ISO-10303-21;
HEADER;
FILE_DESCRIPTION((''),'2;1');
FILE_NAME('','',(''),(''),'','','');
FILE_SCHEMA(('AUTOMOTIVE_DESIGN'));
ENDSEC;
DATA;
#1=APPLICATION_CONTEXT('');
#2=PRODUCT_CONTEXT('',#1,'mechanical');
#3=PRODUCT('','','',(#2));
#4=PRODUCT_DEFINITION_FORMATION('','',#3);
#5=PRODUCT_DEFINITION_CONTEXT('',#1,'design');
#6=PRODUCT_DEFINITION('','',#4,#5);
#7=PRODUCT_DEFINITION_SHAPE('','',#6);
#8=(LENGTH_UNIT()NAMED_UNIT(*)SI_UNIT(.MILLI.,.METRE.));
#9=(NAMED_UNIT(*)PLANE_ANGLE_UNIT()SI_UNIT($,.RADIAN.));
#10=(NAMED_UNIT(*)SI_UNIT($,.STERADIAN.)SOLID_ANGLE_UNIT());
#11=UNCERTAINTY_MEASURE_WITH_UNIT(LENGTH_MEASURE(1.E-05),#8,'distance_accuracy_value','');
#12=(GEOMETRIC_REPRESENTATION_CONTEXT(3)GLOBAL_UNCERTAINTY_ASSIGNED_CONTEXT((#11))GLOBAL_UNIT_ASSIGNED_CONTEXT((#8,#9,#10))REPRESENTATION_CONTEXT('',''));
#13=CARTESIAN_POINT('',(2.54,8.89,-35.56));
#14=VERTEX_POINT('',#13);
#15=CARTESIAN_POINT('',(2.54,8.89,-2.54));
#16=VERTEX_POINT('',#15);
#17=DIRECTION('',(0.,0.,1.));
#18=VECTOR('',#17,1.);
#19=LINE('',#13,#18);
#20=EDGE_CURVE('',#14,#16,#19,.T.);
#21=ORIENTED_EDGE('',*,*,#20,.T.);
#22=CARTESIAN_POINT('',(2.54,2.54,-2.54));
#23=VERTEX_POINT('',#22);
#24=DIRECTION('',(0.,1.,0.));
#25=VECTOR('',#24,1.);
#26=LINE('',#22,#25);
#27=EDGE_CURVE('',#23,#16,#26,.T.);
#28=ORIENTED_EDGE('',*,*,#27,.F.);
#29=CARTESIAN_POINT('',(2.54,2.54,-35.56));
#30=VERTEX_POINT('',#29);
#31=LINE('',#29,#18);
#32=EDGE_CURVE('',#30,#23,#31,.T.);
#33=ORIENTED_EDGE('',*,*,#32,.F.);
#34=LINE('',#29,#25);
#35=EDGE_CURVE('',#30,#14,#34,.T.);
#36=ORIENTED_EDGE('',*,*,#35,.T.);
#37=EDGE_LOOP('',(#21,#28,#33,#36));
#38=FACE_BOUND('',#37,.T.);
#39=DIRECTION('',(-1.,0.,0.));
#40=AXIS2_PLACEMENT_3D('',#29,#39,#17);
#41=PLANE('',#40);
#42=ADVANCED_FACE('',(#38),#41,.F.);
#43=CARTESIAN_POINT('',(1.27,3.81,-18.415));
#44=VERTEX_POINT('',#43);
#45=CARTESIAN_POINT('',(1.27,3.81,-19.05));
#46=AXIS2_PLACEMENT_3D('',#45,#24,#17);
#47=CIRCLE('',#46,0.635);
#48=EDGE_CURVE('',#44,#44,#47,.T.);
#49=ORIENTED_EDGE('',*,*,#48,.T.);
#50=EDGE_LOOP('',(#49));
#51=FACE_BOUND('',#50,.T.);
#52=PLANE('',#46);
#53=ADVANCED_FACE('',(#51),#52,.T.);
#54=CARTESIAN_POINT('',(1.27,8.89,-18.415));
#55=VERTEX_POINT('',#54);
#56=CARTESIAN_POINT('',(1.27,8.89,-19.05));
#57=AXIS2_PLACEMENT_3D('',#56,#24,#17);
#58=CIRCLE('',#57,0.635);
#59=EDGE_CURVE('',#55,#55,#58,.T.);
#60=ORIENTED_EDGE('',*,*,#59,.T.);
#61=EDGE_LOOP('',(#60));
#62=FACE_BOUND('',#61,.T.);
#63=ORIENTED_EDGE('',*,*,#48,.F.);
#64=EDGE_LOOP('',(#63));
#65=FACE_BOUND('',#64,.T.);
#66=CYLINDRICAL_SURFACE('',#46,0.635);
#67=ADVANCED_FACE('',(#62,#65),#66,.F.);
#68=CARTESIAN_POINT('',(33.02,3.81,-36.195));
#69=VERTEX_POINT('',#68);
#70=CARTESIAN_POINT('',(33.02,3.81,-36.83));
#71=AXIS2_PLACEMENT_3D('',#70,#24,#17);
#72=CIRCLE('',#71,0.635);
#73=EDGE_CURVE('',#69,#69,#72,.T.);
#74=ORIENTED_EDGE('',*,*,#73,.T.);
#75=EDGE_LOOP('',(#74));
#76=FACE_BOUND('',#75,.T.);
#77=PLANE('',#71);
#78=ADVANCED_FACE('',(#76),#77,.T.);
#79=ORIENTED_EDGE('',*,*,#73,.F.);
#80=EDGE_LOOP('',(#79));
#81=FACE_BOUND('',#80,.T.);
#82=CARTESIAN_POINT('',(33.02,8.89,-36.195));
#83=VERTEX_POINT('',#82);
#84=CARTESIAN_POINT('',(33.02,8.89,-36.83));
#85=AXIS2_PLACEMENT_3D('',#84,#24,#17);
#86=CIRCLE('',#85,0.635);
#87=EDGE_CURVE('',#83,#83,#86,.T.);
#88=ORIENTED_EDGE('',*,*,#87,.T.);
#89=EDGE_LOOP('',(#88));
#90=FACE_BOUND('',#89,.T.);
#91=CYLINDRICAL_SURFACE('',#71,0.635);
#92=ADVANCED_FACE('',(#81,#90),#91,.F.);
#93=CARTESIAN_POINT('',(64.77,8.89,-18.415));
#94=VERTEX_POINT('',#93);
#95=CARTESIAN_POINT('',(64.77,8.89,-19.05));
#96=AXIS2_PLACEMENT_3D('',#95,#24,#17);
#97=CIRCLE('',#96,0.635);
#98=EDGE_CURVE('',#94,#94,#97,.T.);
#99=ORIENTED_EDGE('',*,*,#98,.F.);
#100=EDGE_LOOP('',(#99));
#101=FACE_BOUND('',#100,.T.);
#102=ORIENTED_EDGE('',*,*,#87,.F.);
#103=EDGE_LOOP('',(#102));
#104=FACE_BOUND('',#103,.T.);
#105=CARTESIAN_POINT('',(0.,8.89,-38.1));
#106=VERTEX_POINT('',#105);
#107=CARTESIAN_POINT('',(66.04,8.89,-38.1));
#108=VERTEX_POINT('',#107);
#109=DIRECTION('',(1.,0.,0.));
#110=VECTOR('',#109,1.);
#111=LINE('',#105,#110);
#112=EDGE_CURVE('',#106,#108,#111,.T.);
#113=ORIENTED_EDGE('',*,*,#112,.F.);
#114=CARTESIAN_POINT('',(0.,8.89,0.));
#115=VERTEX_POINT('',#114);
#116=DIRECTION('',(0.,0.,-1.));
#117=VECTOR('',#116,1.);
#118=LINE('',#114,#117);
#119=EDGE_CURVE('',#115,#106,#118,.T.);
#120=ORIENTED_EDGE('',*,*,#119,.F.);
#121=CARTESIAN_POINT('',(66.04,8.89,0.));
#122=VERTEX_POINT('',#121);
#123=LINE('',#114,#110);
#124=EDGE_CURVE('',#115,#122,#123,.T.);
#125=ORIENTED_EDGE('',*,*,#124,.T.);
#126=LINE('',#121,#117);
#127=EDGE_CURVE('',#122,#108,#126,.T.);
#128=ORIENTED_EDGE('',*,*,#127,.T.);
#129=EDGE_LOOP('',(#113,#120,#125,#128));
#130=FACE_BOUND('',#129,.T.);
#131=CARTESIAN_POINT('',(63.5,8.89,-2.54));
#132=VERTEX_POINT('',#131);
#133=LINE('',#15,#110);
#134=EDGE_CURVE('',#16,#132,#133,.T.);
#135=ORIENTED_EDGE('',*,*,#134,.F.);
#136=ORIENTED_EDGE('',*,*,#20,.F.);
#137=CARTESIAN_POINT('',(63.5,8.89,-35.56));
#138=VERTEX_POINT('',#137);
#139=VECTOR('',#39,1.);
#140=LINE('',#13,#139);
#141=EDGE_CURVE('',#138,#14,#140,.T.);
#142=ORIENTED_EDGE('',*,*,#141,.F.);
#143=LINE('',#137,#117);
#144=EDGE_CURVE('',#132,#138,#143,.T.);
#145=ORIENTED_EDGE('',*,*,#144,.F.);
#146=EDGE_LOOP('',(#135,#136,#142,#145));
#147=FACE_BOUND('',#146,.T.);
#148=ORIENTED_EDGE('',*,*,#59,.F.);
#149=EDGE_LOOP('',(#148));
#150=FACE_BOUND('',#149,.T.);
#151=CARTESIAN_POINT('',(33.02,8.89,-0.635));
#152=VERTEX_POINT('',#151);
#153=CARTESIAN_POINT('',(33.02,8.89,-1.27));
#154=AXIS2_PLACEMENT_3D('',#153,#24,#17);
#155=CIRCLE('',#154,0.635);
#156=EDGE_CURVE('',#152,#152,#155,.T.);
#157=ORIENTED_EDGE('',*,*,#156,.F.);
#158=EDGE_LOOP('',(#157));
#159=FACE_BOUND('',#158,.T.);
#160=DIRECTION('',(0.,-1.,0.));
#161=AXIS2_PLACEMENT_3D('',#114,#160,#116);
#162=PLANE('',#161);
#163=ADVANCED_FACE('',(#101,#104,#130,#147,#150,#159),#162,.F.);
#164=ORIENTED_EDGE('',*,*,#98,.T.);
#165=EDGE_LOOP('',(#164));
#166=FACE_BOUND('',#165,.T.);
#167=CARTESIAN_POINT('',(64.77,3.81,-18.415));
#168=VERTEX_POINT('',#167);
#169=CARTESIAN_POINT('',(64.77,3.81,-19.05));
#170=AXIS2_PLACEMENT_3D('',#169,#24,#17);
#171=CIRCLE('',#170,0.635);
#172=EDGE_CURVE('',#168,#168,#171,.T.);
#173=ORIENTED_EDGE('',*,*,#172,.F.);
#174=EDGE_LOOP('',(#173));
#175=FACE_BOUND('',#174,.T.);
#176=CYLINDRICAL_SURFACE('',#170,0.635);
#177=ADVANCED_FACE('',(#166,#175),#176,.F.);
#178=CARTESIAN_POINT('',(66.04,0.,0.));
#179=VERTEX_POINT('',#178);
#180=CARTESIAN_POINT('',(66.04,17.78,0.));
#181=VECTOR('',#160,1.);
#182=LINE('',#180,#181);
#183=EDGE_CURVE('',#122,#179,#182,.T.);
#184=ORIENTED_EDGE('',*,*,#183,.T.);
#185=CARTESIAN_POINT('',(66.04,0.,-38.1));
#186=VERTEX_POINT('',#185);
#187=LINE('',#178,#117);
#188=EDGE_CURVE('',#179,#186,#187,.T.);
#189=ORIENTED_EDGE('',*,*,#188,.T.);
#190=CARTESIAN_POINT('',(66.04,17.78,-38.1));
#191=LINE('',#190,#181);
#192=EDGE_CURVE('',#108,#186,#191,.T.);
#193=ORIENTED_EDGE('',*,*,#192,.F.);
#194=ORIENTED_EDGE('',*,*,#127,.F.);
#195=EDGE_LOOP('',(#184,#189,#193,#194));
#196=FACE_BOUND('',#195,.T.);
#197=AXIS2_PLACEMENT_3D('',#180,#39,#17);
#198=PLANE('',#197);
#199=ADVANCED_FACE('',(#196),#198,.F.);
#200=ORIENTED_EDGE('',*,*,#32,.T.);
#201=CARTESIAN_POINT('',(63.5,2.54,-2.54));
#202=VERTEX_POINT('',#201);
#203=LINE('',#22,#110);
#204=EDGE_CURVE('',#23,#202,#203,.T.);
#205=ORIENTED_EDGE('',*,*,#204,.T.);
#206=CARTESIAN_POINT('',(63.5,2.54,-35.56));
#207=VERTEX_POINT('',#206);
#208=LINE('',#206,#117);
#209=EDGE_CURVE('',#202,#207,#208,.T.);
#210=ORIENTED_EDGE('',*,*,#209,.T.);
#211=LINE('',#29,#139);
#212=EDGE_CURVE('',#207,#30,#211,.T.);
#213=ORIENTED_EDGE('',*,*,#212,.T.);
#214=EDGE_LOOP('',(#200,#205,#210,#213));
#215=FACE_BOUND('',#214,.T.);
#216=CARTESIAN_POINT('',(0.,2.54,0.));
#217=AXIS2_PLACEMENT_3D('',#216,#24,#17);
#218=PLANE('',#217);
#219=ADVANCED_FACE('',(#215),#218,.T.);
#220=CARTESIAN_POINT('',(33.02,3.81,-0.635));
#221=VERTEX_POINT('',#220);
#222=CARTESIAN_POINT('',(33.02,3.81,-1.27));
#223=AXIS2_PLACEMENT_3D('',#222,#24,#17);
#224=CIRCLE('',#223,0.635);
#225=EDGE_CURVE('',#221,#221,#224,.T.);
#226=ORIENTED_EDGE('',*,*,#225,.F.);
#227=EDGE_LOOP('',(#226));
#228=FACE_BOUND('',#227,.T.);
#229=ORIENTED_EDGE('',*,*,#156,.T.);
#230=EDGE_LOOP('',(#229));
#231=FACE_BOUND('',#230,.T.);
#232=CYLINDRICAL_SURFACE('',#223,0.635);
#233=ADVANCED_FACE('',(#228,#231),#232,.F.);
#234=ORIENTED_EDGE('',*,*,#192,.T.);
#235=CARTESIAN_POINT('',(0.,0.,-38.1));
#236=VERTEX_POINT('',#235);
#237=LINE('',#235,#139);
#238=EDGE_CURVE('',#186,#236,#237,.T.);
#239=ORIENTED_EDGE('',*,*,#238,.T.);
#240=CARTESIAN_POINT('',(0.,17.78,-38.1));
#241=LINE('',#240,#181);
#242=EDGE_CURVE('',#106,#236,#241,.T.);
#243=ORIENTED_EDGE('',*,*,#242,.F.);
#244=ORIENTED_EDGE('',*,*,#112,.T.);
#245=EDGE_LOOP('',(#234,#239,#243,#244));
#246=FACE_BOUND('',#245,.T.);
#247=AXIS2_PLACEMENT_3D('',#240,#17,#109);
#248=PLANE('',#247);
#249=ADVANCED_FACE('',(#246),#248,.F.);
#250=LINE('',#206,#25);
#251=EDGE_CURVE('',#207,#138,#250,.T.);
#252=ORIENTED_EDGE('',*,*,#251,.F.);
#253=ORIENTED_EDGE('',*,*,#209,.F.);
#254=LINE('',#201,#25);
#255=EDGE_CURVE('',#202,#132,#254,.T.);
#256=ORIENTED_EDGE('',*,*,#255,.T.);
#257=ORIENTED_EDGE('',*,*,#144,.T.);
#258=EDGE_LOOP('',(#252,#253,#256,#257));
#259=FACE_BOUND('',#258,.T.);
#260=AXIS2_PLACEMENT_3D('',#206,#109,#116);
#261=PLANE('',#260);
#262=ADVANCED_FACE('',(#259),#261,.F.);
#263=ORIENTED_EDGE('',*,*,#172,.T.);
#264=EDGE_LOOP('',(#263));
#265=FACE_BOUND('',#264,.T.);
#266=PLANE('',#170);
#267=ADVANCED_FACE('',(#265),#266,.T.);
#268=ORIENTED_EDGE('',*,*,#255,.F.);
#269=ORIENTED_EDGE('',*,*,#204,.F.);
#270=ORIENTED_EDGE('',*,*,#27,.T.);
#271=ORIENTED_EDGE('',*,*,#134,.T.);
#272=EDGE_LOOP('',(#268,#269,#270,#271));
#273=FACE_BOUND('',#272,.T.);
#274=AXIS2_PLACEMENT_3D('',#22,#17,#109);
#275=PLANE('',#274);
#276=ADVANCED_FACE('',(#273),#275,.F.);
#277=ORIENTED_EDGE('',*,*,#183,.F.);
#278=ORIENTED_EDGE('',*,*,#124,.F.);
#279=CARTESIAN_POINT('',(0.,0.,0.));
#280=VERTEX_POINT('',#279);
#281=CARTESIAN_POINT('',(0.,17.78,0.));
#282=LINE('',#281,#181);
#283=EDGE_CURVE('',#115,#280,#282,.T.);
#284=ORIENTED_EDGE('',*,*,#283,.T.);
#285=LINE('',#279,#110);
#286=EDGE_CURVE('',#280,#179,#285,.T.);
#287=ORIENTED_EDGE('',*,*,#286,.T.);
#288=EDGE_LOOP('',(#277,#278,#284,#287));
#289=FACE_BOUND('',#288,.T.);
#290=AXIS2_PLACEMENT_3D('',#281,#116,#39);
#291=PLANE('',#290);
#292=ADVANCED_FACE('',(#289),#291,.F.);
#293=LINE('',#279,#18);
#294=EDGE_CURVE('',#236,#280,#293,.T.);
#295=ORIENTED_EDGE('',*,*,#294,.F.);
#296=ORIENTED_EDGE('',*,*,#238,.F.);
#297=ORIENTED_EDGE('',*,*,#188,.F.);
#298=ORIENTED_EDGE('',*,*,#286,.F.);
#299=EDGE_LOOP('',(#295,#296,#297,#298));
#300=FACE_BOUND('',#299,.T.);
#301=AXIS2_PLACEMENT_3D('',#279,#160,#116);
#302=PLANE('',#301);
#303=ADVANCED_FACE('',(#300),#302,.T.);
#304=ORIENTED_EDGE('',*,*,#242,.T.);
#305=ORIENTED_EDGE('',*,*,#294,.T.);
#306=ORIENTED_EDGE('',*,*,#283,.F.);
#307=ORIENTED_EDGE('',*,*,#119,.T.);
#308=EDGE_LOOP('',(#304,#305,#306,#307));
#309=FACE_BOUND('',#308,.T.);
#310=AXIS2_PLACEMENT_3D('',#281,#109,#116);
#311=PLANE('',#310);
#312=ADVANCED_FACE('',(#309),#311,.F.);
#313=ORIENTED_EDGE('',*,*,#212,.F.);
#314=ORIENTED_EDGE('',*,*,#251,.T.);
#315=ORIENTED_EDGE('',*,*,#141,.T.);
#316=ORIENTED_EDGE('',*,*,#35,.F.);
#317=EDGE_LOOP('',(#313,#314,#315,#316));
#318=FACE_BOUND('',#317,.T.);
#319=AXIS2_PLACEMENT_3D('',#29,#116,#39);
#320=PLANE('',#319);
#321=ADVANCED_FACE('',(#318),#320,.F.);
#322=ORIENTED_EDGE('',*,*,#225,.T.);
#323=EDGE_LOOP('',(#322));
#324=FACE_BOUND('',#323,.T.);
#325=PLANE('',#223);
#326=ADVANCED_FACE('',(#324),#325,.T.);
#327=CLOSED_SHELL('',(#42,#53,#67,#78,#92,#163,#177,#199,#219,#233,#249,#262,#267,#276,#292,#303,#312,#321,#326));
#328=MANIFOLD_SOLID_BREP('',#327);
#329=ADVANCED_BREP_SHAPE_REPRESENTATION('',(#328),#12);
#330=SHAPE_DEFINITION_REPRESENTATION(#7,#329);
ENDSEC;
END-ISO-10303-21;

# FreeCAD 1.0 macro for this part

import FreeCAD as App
import Part
import Sketcher
Q = App.Units.Quantity


def add_polygon(sketch, points):
    """Adds a closed chain of lines whose ends are joined by coincident constraints."""
    first, n = sketch.GeometryCount, len(points)
    for a, b in zip(points, points[1:] + points[:1]):
        sketch.addGeometry(Part.LineSegment(App.Vector(*a, 0), App.Vector(*b, 0)), False)
    for i in range(n):
        sketch.addConstraint(Sketcher.Constraint("Coincident", first + i, 2, first + (i + 1) % n, 1))

doc = App.newDocument("Part")
body = doc.addObject("PartDesign::Body", "Body")

# Sketch on XZ plane
sketch1 = body.newObject("Sketcher::SketchObject", "Sketch")
sketch1.AttachmentSupport = (doc.getObject("XZ_Plane"), [""])
sketch1.MapMode = "FlatFace"
add_polygon(sketch1, [(0, -38.1), (0, 0), (66.04, 0), (66.04, -38.1)])  # lines 0-3
sketch1.addConstraint(Sketcher.Constraint("Vertical", 0))
sketch1.addConstraint(Sketcher.Constraint("Horizontal", 1))
sketch1.addConstraint(Sketcher.Constraint("Vertical", 2))
sketch1.addConstraint(Sketcher.Constraint("Horizontal", 3))
sketch1.addConstraint(Sketcher.Constraint("Coincident", 0, 2, -1, 1))
sketch1.addConstraint(Sketcher.Constraint("DistanceX", 1, 1, 1, 2, Q("2.6 in")))
sketch1.addConstraint(Sketcher.Constraint("DistanceY", 0, 1, 0, 2, Q("1.5 in")))
pad1 = body.newObject("PartDesign::Pad", "Pad")
pad1.Profile = sketch1
pad1.Length = Q("0.7 in")
pad1.Reversed = True

# Sketch on XZ plane
sketch2 = body.newObject("Sketcher::SketchObject", "Sketch001")
sketch2.AttachmentSupport = (doc.getObject("XZ_Plane"), [""])
sketch2.MapMode = "FlatFace"
sketch2.AttachmentOffset = App.Placement(App.Vector(0, 0, -0.7 * 25.4), App.Rotation())
add_polygon(sketch2, [(2.54, -35.56), (2.54, -2.54), (63.5, -2.54), (63.5, -35.56)])  # lines 0-3
sketch2.addConstraint(Sketcher.Constraint("Vertical", 0))
sketch2.addConstraint(Sketcher.Constraint("Horizontal", 1))
sketch2.addConstraint(Sketcher.Constraint("Vertical", 2))
sketch2.addConstraint(Sketcher.Constraint("Horizontal", 3))
sketch2.addConstraint(Sketcher.Constraint("DistanceX", 1, 1, 1, 2, Q("2.4 in")))
sketch2.addConstraint(Sketcher.Constraint("DistanceY", 0, 1, 0, 2, Q("1.3 in")))
sketch2.addConstraint(Sketcher.Constraint("DistanceX", -1, 1, 0, 2, Q("0.1 in")))
sketch2.addConstraint(Sketcher.Constraint("DistanceY", 0, 2, -1, 1, Q("0.1 in")))
pocket1 = body.newObject("PartDesign::Pocket", "Pocket")
pocket1.Profile = sketch2
pocket1.Length = Q("0.6 in")
pocket1.Reversed = True

# Sketch on YZ plane
sketch3 = body.newObject("Sketcher::SketchObject", "Sketch002")
sketch3.AttachmentSupport = (doc.getObject("YZ_Plane"), [""])
sketch3.MapMode = "FlatFace"
sketch3.AttachmentOffset = App.Placement(App.Vector(0, 0, 2.6 * 25.4), App.Rotation())
add_polygon(sketch3, [(17.78, 0), (8.89, 0), (8.89, -38.1), (17.78, -38.1)])  # lines 0-3
sketch3.addConstraint(Sketcher.Constraint("Horizontal", 0))
sketch3.addConstraint(Sketcher.Constraint("Vertical", 1))
sketch3.addConstraint(Sketcher.Constraint("Horizontal", 2))
sketch3.addConstraint(Sketcher.Constraint("Vertical", 3))
sketch3.addConstraint(Sketcher.Constraint("PointOnObject", 0, 2, -1))
sketch3.addConstraint(Sketcher.Constraint("DistanceY", 1, 2, 1, 1, Q("1.5 in")))
sketch3.addConstraint(Sketcher.Constraint("DistanceX", 0, 2, 0, 1, Q("0.35 in")))
sketch3.addConstraint(Sketcher.Constraint("DistanceX", -1, 1, 2, 2, Q("0.7 in")))
pocket2 = body.newObject("PartDesign::Pocket", "Pocket001")
pocket2.Profile = sketch3
pocket2.Length = Q("2.6 in")

# Sketch on XZ plane
sketch4 = body.newObject("Sketcher::SketchObject", "Sketch003")
sketch4.AttachmentSupport = (doc.getObject("XZ_Plane"), [""])
sketch4.MapMode = "FlatFace"
sketch4.AttachmentOffset = App.Placement(App.Vector(0, 0, -0.35 * 25.4), App.Rotation())
sketch4.addGeometry(Part.Circle(App.Vector(33.02, -36.83, 0), App.Vector(0, 0, 1), 0.635), False)
sketch4.addGeometry(Part.Circle(App.Vector(33.02, -1.27, 0), App.Vector(0, 0, 1), 0.635), False)
sketch4.addGeometry(Part.Circle(App.Vector(1.27, -19.05, 0), App.Vector(0, 0, 1), 0.635), False)
sketch4.addGeometry(Part.Circle(App.Vector(64.77, -19.05, 0), App.Vector(0, 0, 1), 0.635), False)
sketch4.addConstraint(Sketcher.Constraint("Equal", 0, 1))
sketch4.addConstraint(Sketcher.Constraint("Equal", 1, 2))
sketch4.addConstraint(Sketcher.Constraint("Equal", 2, 3))
sketch4.addConstraint(Sketcher.Constraint("Horizontal", 2, 3, 3, 3))
sketch4.addConstraint(Sketcher.Constraint("Vertical", 0, 3, 1, 3))
sketch4.addConstraint(Sketcher.Constraint("Diameter", 0, Q("0.05 in")))
sketch4.addConstraint(Sketcher.Constraint("DistanceX", -1, 1, 0, 3, Q("1.3 in")))
sketch4.addConstraint(Sketcher.Constraint("DistanceY", 0, 3, 1, 3, Q("1.4 in")))
sketch4.addConstraint(Sketcher.Constraint("DistanceY", 0, 3, 2, 3, Q("0.7 in")))
sketch4.addConstraint(Sketcher.Constraint("DistanceX", 2, 3, 3, 3, Q("2.5 in")))
sketch4.addConstraint(Sketcher.Constraint("DistanceY", 0, 3, -1, 1, Q("1.45 in")))
sketch4.addConstraint(Sketcher.Constraint("DistanceX", -1, 1, 2, 3, Q("0.05 in")))
pocket3 = body.newObject("PartDesign::Pocket", "Pocket002")
pocket3.Profile = sketch4
pocket3.Length = Q("0.2 in")
pocket3.Reversed = True

doc.recompute()
